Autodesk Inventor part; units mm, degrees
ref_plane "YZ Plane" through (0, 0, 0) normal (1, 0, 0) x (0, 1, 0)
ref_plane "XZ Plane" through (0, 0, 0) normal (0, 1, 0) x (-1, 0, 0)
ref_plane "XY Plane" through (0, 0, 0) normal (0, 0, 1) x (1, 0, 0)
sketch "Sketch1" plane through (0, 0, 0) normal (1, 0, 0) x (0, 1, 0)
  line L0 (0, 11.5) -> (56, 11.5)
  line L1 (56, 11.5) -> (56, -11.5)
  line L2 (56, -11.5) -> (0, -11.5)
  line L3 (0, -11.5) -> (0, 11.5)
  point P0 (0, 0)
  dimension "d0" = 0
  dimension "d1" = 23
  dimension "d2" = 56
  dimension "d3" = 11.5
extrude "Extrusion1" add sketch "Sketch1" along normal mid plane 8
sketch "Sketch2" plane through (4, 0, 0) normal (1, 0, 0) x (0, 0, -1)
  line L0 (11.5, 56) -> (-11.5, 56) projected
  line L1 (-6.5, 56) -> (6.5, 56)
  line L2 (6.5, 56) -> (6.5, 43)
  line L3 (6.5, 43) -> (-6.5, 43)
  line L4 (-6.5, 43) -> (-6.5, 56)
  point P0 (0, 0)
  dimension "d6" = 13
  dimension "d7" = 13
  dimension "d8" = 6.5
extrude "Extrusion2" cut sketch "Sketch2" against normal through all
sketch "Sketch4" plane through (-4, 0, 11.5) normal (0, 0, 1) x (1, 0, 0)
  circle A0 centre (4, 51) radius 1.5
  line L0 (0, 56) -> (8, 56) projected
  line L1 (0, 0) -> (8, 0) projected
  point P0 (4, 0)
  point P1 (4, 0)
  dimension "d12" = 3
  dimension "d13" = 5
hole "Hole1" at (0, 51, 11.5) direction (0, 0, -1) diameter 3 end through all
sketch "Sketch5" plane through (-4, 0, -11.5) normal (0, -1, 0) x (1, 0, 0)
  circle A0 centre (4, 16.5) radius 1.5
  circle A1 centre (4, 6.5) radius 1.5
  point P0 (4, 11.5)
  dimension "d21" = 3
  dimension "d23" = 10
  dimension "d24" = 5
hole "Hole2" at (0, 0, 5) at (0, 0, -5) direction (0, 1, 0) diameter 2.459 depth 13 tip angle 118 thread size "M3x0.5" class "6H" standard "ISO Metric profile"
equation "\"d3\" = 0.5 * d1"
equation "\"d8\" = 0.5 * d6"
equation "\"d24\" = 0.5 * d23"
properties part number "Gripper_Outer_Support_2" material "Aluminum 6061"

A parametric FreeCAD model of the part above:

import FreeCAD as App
import Part
import Sketcher

V = App.Vector

doc = App.newDocument("Part")
body = doc.addObject("PartDesign::Body", "Body")

# Sketch on YZ plane
sketch1 = doc.addObject("Sketcher::SketchObject", "Sketch")
body.addObject(sketch1)
sketch1.AttachmentSupport = (doc.YZ_Plane, [""])
sketch1.MapMode = "FlatFace"
sketch1.addGeometry([
    Part.LineSegment(V(56, 12, 0), V(0, 12, 0)),
    Part.LineSegment(V(0, 12, 0), V(0, -12, 0)),
    Part.LineSegment(V(0, -12, 0), V(56, -12, 0)),
    Part.LineSegment(V(56, -12, 0), V(56, 12, 0)),
], False)
sketch1.addConstraint([
    Sketcher.Constraint("Coincident", 0, 2, 1, 1),
    Sketcher.Constraint("Coincident", 1, 2, 2, 1),
    Sketcher.Constraint("Coincident", 2, 2, 3, 1),
    Sketcher.Constraint("Coincident", 3, 2, 0, 1),
    Sketcher.Constraint("Horizontal", 0),
    Sketcher.Constraint("Vertical", 1),
    Sketcher.Constraint("Horizontal", 2),
    Sketcher.Constraint("Vertical", 3),
    Sketcher.Constraint("Symmetric", 0, 2, 1, 2, -1, 1),
    Sketcher.Constraint("DistanceX", 0, 2, 0, 1, 56.0),
    Sketcher.Constraint("DistanceY", 1, 2, 1, 1, 23.0),
])
pad1 = doc.addObject("PartDesign::Pad", "Pad")
body.addObject(pad1)
pad1.Profile = sketch1
pad1.Length = 8
pad1.Midplane = True

# Sketch on YZ plane
sketch2 = doc.addObject("Sketcher::SketchObject", "Sketch001")
body.addObject(sketch2)
sketch2.AttachmentSupport = (doc.YZ_Plane, [""])
sketch2.MapMode = "FlatFace"
sketch2.AttachmentOffset = App.Placement(V(0, 0, 4), App.Rotation())
sketch2.addGeometry([
    Part.LineSegment(V(43, -6, 0), V(56, -6, 0)),
    Part.LineSegment(V(56, -6, 0), V(56, 6, 0)),
    Part.LineSegment(V(56, 6, 0), V(43, 6, 0)),
    Part.LineSegment(V(43, 6, 0), V(43, -6, 0)),
], False)
sketch2.addConstraint([
    Sketcher.Constraint("Coincident", 0, 2, 1, 1),
    Sketcher.Constraint("Coincident", 1, 2, 2, 1),
    Sketcher.Constraint("Coincident", 2, 2, 3, 1),
    Sketcher.Constraint("Coincident", 3, 2, 0, 1),
    Sketcher.Constraint("Horizontal", 0),
    Sketcher.Constraint("Vertical", 1),
    Sketcher.Constraint("Horizontal", 2),
    Sketcher.Constraint("Vertical", 3),
    Sketcher.Constraint("Equal", 2, 1),
    Sketcher.Constraint("DistanceX", 0, 1, 0, 2, 13.0),
    Sketcher.Constraint("DistanceY", 0, 2, -1, 1, 6.5),
    Sketcher.Constraint("DistanceX", -1, 1, 0, 2, 56.0),
])
pocket1 = doc.addObject("PartDesign::Pocket", "Pocket")
body.addObject(pocket1)
pocket1.Profile = sketch2
pocket1.Type = "ThroughAll"

# Sketch on XY plane
sketch3 = doc.addObject("Sketcher::SketchObject", "Sketch002")
body.addObject(sketch3)
sketch3.AttachmentSupport = (doc.XY_Plane, [""])
sketch3.MapMode = "FlatFace"
sketch3.AttachmentOffset = App.Placement(V(0, 0, 11.5), App.Rotation())
sketch3.addGeometry(Part.Circle(V(0, 51, 0), V(0, 0, 1), 1.5), False)
sketch3.addConstraint([
    Sketcher.Constraint("PointOnObject", 0, 3, -2),
    Sketcher.Constraint("Diameter", 0, 3.0),
    Sketcher.Constraint("DistanceY", -1, 1, 0, 3, 51.0),
])
doc.recompute()
hole = doc.addObject("PartDesign::Hole", "Hole")
body.addObject(hole)
hole.Profile = sketch3
hole.ThreadType = "None"
hole.Diameter = 3
hole.DepthType = "ThroughAll"

# Sketch on XZ plane
sketch4 = doc.addObject("Sketcher::SketchObject", "Sketch003")
body.addObject(sketch4)
sketch4.AttachmentSupport = (doc.XZ_Plane, [""])
sketch4.MapMode = "FlatFace"
sketch4.addGeometry([
    Part.Circle(V(0, 5, 0), V(0, 0, 1), 1.2),
    Part.Circle(V(0, -5, 0), V(0, 0, 1), 1.2),
], False)
sketch4.addConstraint([
    Sketcher.Constraint("Equal", 0, 1),
    Sketcher.Constraint("Symmetric", 0, 3, 1, 3, -1, 1),
    Sketcher.Constraint("PointOnObject", 0, 3, -2),
    Sketcher.Constraint("Diameter", 0, 2.459),
    Sketcher.Constraint("DistanceY", -1, 1, 0, 3, 5.0),
])
doc.recompute()
hole2 = doc.addObject("PartDesign::Hole", "Hole001")
body.addObject(hole2)
hole2.Profile = sketch4
hole2.ThreadType = "None"
hole2.Diameter = 2.459
hole2.DepthType = "Dimension"
hole2.Depth = 13
hole2.DrillPoint = "Angled"
hole2.DrillPointAngle = 118

doc.recompute()
